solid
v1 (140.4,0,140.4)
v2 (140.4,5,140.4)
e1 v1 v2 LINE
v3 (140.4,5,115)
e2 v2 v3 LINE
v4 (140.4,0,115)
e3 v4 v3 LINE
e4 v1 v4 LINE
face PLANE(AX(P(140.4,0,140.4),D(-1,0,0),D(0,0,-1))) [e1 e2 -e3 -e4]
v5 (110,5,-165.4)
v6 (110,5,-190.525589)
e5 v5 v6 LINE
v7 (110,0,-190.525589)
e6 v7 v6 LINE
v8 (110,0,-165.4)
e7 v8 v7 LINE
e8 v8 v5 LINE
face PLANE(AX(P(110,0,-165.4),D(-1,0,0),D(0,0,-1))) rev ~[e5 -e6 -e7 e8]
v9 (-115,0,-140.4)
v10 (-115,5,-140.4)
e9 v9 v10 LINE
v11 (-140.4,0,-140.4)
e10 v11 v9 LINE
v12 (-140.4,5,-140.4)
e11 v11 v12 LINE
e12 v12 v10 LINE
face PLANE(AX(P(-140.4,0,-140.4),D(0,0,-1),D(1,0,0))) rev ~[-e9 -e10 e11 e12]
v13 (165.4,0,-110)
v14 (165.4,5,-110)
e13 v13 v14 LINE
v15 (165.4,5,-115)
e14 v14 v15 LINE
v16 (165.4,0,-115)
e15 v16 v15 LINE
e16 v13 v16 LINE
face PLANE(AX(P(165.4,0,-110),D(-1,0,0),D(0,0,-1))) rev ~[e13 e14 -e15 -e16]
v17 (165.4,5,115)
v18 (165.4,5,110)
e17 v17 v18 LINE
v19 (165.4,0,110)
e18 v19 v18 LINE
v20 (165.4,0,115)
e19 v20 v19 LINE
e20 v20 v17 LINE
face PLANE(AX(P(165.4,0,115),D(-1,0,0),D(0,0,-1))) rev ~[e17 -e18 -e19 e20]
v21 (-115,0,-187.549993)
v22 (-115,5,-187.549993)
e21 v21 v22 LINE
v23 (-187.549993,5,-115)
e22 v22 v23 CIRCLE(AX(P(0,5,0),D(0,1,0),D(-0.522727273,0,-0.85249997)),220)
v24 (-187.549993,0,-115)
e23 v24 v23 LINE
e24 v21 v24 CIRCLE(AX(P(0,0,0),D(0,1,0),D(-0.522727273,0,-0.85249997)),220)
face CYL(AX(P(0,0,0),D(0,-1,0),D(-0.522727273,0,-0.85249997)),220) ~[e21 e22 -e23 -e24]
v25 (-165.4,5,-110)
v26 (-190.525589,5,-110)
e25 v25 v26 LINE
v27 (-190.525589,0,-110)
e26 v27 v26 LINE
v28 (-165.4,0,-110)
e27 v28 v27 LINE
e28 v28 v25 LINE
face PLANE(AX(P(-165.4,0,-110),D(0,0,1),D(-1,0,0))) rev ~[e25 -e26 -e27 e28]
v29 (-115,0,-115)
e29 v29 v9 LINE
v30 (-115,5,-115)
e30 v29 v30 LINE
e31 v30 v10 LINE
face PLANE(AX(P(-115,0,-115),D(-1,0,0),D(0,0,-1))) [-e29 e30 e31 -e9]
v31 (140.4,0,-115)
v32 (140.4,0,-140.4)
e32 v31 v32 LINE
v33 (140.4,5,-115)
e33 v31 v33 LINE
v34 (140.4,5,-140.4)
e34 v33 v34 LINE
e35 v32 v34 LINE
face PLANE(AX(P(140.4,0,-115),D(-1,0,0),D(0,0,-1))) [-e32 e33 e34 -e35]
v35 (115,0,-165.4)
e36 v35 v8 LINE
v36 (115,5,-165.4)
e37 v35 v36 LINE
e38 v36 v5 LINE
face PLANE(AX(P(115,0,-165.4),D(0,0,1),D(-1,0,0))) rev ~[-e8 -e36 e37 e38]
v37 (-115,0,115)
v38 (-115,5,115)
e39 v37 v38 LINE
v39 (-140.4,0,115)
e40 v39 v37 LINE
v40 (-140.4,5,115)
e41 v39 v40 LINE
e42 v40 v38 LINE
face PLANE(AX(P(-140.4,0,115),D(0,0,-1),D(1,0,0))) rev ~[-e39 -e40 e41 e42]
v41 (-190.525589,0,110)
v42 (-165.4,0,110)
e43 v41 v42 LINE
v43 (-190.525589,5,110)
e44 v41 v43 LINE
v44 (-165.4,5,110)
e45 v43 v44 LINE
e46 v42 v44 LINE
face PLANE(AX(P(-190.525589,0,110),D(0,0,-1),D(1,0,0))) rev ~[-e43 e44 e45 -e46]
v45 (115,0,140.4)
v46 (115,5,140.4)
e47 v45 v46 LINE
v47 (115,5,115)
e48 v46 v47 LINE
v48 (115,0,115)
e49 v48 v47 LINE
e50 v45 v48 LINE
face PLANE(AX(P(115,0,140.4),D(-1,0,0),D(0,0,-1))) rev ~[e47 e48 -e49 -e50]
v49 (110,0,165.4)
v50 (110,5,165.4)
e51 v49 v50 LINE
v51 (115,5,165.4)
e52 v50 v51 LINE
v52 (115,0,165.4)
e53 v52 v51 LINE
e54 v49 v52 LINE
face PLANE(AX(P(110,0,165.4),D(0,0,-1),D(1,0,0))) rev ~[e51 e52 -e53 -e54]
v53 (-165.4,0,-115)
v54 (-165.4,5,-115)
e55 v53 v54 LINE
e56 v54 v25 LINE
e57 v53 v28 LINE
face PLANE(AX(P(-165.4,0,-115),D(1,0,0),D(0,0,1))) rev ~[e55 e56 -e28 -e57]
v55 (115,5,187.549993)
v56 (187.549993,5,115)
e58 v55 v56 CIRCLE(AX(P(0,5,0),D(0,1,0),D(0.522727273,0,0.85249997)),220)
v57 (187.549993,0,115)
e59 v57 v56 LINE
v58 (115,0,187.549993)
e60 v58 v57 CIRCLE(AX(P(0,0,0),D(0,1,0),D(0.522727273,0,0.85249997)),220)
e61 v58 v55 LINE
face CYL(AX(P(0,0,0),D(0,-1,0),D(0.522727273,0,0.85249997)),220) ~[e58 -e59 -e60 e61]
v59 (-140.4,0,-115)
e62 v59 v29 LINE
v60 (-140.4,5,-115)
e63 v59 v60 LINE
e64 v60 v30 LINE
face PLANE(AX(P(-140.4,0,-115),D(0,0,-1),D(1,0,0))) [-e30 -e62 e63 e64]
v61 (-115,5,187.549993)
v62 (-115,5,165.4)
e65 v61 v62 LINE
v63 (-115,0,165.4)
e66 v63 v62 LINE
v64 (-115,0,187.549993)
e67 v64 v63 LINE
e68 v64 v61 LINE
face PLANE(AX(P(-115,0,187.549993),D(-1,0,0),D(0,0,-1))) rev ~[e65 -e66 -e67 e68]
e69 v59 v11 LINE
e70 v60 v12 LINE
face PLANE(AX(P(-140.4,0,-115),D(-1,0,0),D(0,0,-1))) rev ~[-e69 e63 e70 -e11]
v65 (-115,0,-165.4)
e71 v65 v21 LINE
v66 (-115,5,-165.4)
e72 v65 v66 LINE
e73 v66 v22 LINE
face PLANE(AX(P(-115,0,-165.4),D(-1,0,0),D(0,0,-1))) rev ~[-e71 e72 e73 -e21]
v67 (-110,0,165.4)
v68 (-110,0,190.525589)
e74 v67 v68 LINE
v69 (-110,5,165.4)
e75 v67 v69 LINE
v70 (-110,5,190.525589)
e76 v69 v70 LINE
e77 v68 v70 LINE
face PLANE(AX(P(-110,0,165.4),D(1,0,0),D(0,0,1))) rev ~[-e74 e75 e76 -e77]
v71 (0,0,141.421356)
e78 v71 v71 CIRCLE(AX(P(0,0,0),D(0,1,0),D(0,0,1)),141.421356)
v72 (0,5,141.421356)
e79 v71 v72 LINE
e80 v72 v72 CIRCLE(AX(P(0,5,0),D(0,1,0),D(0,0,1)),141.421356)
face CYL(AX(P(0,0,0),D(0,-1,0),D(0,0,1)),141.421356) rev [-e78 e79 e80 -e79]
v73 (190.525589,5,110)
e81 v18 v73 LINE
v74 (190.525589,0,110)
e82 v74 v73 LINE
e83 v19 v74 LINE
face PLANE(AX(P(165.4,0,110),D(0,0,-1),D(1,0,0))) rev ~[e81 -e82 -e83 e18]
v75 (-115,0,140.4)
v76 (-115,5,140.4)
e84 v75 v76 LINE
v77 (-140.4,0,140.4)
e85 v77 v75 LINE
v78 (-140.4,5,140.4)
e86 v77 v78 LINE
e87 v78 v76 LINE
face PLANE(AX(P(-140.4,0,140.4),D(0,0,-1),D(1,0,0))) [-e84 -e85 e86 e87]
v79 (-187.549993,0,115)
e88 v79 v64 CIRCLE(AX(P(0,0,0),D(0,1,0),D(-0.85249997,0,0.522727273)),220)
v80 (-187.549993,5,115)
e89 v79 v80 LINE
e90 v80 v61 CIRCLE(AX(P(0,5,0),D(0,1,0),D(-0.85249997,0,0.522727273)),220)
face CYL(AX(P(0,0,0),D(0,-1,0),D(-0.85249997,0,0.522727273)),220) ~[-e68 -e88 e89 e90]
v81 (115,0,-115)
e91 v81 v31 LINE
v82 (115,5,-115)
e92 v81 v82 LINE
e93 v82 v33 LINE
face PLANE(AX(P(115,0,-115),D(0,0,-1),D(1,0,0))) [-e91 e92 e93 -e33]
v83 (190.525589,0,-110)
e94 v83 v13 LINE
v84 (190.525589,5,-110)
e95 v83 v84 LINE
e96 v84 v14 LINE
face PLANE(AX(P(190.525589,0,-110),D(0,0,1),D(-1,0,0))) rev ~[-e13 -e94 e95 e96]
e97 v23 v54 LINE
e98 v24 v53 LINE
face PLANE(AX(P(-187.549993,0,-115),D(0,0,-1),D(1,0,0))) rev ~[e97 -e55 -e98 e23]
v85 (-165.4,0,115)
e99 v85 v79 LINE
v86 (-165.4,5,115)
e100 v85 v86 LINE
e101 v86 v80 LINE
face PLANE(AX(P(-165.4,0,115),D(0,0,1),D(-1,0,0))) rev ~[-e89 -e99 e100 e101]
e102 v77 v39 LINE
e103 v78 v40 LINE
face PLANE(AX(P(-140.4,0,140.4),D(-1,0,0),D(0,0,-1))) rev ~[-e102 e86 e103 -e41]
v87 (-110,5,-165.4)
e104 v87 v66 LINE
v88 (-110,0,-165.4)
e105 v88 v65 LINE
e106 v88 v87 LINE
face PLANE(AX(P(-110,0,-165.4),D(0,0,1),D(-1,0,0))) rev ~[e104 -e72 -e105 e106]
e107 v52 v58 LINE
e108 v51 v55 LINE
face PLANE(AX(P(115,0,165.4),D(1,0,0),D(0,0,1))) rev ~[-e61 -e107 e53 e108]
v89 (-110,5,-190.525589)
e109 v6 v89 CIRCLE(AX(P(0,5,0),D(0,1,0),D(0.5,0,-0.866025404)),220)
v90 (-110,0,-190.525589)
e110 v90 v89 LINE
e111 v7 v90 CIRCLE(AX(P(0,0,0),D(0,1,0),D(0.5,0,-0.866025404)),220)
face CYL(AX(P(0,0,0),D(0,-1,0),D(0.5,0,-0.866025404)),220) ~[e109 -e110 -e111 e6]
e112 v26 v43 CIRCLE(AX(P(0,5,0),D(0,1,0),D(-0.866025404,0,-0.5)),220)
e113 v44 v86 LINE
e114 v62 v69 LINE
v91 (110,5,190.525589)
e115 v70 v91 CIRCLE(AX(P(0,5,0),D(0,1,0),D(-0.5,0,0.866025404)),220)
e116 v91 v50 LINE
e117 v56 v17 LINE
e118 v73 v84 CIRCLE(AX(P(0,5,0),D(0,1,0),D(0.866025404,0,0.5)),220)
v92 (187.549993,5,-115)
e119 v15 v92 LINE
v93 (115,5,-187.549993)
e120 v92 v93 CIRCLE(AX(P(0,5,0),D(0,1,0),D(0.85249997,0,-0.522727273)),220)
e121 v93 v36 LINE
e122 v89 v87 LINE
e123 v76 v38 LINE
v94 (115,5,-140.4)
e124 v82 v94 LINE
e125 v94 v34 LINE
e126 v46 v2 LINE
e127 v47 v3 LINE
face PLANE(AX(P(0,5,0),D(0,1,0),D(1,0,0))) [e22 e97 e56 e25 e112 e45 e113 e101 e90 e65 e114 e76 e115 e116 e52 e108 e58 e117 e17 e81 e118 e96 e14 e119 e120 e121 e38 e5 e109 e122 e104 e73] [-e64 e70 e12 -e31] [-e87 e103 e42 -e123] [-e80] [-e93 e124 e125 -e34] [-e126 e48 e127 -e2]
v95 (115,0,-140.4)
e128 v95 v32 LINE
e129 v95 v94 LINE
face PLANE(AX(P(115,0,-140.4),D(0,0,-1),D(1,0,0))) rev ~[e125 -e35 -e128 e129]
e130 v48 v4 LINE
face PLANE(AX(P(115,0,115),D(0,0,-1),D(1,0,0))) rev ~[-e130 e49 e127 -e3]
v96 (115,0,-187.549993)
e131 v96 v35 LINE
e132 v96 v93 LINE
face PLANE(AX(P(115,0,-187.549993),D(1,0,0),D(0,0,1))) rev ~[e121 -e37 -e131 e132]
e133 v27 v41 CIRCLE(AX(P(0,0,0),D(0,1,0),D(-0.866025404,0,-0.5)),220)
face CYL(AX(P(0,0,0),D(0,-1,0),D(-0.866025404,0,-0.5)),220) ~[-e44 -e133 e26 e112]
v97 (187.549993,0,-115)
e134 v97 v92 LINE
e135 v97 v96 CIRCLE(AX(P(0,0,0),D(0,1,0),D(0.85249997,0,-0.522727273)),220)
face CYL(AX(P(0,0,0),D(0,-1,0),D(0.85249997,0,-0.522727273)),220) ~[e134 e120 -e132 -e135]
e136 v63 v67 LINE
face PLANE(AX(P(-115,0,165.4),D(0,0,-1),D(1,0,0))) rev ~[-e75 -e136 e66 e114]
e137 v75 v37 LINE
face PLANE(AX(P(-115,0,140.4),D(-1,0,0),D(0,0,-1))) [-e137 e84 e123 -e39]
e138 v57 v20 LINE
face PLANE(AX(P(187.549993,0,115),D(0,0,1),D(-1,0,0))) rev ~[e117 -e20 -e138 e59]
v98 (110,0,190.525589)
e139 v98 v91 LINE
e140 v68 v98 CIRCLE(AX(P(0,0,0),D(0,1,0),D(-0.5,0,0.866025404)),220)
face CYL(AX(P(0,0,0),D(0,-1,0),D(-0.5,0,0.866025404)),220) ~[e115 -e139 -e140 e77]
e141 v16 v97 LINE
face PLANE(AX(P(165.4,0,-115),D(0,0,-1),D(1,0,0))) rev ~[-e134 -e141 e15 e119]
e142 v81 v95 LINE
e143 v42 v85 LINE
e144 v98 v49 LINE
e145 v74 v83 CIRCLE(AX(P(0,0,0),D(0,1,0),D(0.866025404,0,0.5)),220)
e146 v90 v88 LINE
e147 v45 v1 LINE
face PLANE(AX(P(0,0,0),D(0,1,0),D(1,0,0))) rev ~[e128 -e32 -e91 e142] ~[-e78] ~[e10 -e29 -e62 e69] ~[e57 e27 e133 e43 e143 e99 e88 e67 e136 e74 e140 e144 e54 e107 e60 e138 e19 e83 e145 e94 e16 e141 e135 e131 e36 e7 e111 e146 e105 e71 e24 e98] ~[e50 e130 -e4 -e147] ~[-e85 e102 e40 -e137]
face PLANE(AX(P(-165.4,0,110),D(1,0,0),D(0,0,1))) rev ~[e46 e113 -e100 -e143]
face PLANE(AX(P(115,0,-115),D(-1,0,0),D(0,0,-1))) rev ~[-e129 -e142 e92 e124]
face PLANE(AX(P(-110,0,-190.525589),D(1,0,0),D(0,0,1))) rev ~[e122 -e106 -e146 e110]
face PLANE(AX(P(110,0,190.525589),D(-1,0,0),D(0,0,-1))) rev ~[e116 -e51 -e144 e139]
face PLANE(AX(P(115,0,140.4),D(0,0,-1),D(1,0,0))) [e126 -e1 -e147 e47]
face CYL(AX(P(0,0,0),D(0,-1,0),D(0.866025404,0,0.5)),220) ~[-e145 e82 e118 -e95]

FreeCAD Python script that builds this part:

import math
import FreeCAD as App
import Part
import Sketcher

V = App.Vector
Q = App.Units.Quantity

doc = App.newDocument("Part")
body = doc.addObject("PartDesign::Body", "Body")

# Sketch on XZ plane
sketch1 = doc.addObject("Sketcher::SketchObject", "Sketch")
body.addObject(sketch1)
sketch1.AttachmentSupport = (doc.XZ_Plane, [""])
sketch1.MapMode = "FlatFace"
sketch1.addGeometry(Part.LineSegment(V(115, -165, 0), V(110, -165, 0)), False)
sketch1.addGeometry(Part.LineSegment(V(110, -165, 0), V(110, -191, 0)), False)
sketch1.addGeometry(Part.ArcOfCircle(Part.Circle(V(0, 0, 0), V(0, 0, 1), 220), math.radians(-120), math.radians(-60)), False)
sketch1.addGeometry(Part.LineSegment(V(-110, -191, 0), V(-110, -165, 0)), False)
sketch1.addGeometry(Part.LineSegment(V(-110, -165, 0), V(-115, -165, 0)), False)
sketch1.addGeometry(Part.LineSegment(V(-115, -165, 0), V(-115, -188, 0)), False)
sketch1.addGeometry(Part.ArcOfCircle(Part.Circle(V(0, 0, 0), V(0, 0, 1), 220), math.radians(-148), math.radians(-122)), False)
sketch1.addGeometry(Part.LineSegment(V(-188, -115, 0), V(-165, -115, 0)), False)
sketch1.addGeometry(Part.LineSegment(V(-165, -115, 0), V(-165, -110, 0)), False)
sketch1.addGeometry(Part.LineSegment(V(-165, -110, 0), V(-191, -110, 0)), False)
sketch1.addGeometry(Part.ArcOfCircle(Part.Circle(V(0, 0, 0), V(0, 0, 1), 220), math.radians(150), math.radians(210)), False)
sketch1.addGeometry(Part.LineSegment(V(-191, 110, 0), V(-165, 110, 0)), False)
sketch1.addGeometry(Part.LineSegment(V(-165, 110, 0), V(-165, 115, 0)), False)
sketch1.addGeometry(Part.LineSegment(V(-165, 115, 0), V(-188, 115, 0)), False)
sketch1.addGeometry(Part.ArcOfCircle(Part.Circle(V(0, 0, 0), V(0, 0, 1), 220), math.radians(122), math.radians(148)), False)
sketch1.addGeometry(Part.LineSegment(V(-115, 188, 0), V(-115, 165, 0)), False)
sketch1.addGeometry(Part.LineSegment(V(-115, 165, 0), V(-110, 165, 0)), False)
sketch1.addGeometry(Part.LineSegment(V(-110, 165, 0), V(-110, 191, 0)), False)
sketch1.addGeometry(Part.ArcOfCircle(Part.Circle(V(0, 0, 0), V(0, 0, 1), 220), math.radians(60), math.radians(120)), False)
sketch1.addGeometry(Part.LineSegment(V(110, 191, 0), V(110, 165, 0)), False)
sketch1.addGeometry(Part.LineSegment(V(110, 165, 0), V(115, 165, 0)), False)
sketch1.addGeometry(Part.LineSegment(V(115, 165, 0), V(115, 188, 0)), False)
sketch1.addGeometry(Part.ArcOfCircle(Part.Circle(V(0, 0, 0), V(0, 0, 1), 220), math.radians(32), math.radians(58)), False)
sketch1.addGeometry(Part.LineSegment(V(188, 115, 0), V(165, 115, 0)), False)
sketch1.addGeometry(Part.LineSegment(V(165, 115, 0), V(165, 110, 0)), False)
sketch1.addGeometry(Part.LineSegment(V(165, 110, 0), V(191, 110, 0)), False)
sketch1.addGeometry(Part.ArcOfCircle(Part.Circle(V(0, 0, 0), V(0, 0, 1), 220), math.radians(-30), math.radians(30)), False)
sketch1.addGeometry(Part.LineSegment(V(191, -110, 0), V(165, -110, 0)), False)
sketch1.addGeometry(Part.LineSegment(V(165, -110, 0), V(165, -115, 0)), False)
sketch1.addGeometry(Part.LineSegment(V(165, -115, 0), V(188, -115, 0)), False)
sketch1.addGeometry(Part.ArcOfCircle(Part.Circle(V(0, 0, 0), V(0, 0, 1), 220), math.radians(-58), math.radians(-32)), False)
sketch1.addGeometry(Part.LineSegment(V(115, -188, 0), V(115, -165, 0)), False)
sketch1.addGeometry(Part.LineSegment(V(-115, 140, 0), V(-140, 140, 0)), False)
sketch1.addGeometry(Part.LineSegment(V(-140, 140, 0), V(-140, 115, 0)), False)
sketch1.addGeometry(Part.LineSegment(V(-140, 115, 0), V(-115, 115, 0)), False)
sketch1.addGeometry(Part.LineSegment(V(-115, 115, 0), V(-115, 140, 0)), False)
sketch1.addGeometry(Part.LineSegment(V(140, 140, 0), V(115, 140, 0)), False)
sketch1.addGeometry(Part.LineSegment(V(115, 140, 0), V(115, 115, 0)), False)
sketch1.addGeometry(Part.LineSegment(V(115, 115, 0), V(140, 115, 0)), False)
sketch1.addGeometry(Part.LineSegment(V(140, 115, 0), V(140, 140, 0)), False)
sketch1.addGeometry(Part.LineSegment(V(-115, -115, 0), V(-140, -115, 0)), False)
sketch1.addGeometry(Part.LineSegment(V(-140, -115, 0), V(-140, -140, 0)), False)
sketch1.addGeometry(Part.LineSegment(V(-140, -140, 0), V(-115, -140, 0)), False)
sketch1.addGeometry(Part.LineSegment(V(-115, -140, 0), V(-115, -115, 0)), False)
sketch1.addGeometry(Part.Circle(V(0, 0, 0), V(0, 0, 1), 141), False)
sketch1.addGeometry(Part.LineSegment(V(140, -115, 0), V(115, -115, 0)), False)
sketch1.addGeometry(Part.LineSegment(V(115, -115, 0), V(115, -140, 0)), False)
sketch1.addGeometry(Part.LineSegment(V(115, -140, 0), V(140, -140, 0)), False)
sketch1.addGeometry(Part.LineSegment(V(140, -140, 0), V(140, -115, 0)), False)
sketch1.addConstraint(Sketcher.Constraint("Coincident", 0, 2, 1, 1))
sketch1.addConstraint(Sketcher.Constraint("Coincident", 1, 2, 2, 2))
sketch1.addConstraint(Sketcher.Constraint("Coincident", 2, 1, 3, 1))
sketch1.addConstraint(Sketcher.Constraint("Coincident", 3, 2, 4, 1))
sketch1.addConstraint(Sketcher.Constraint("Coincident", 4, 2, 5, 1))
sketch1.addConstraint(Sketcher.Constraint("Coincident", 5, 2, 6, 2))
sketch1.addConstraint(Sketcher.Constraint("Coincident", 6, 1, 7, 1))
sketch1.addConstraint(Sketcher.Constraint("Coincident", 7, 2, 8, 1))
sketch1.addConstraint(Sketcher.Constraint("Coincident", 8, 2, 9, 1))
sketch1.addConstraint(Sketcher.Constraint("Coincident", 9, 2, 10, 2))
sketch1.addConstraint(Sketcher.Constraint("Coincident", 10, 1, 11, 1))
sketch1.addConstraint(Sketcher.Constraint("Coincident", 11, 2, 12, 1))
sketch1.addConstraint(Sketcher.Constraint("Coincident", 12, 2, 13, 1))
sketch1.addConstraint(Sketcher.Constraint("Coincident", 13, 2, 14, 2))
sketch1.addConstraint(Sketcher.Constraint("Coincident", 14, 1, 15, 1))
sketch1.addConstraint(Sketcher.Constraint("Coincident", 15, 2, 16, 1))
sketch1.addConstraint(Sketcher.Constraint("Coincident", 16, 2, 17, 1))
sketch1.addConstraint(Sketcher.Constraint("Coincident", 17, 2, 18, 2))
sketch1.addConstraint(Sketcher.Constraint("Coincident", 18, 1, 19, 1))
sketch1.addConstraint(Sketcher.Constraint("Coincident", 19, 2, 20, 1))
sketch1.addConstraint(Sketcher.Constraint("Coincident", 20, 2, 21, 1))
sketch1.addConstraint(Sketcher.Constraint("Coincident", 21, 2, 22, 2))
sketch1.addConstraint(Sketcher.Constraint("Coincident", 22, 1, 23, 1))
sketch1.addConstraint(Sketcher.Constraint("Coincident", 23, 2, 24, 1))
sketch1.addConstraint(Sketcher.Constraint("Coincident", 24, 2, 25, 1))
sketch1.addConstraint(Sketcher.Constraint("Coincident", 25, 2, 26, 2))
sketch1.addConstraint(Sketcher.Constraint("Coincident", 26, 1, 27, 1))
sketch1.addConstraint(Sketcher.Constraint("Coincident", 27, 2, 28, 1))
sketch1.addConstraint(Sketcher.Constraint("Coincident", 28, 2, 29, 1))
sketch1.addConstraint(Sketcher.Constraint("Coincident", 29, 2, 30, 2))
sketch1.addConstraint(Sketcher.Constraint("Coincident", 30, 1, 31, 1))
sketch1.addConstraint(Sketcher.Constraint("Coincident", 31, 2, 0, 1))
sketch1.addConstraint(Sketcher.Constraint("Coincident", 32, 2, 33, 1))
sketch1.addConstraint(Sketcher.Constraint("Coincident", 33, 2, 34, 1))
sketch1.addConstraint(Sketcher.Constraint("Coincident", 34, 2, 35, 1))
sketch1.addConstraint(Sketcher.Constraint("Coincident", 35, 2, 32, 1))
sketch1.addConstraint(Sketcher.Constraint("Coincident", 36, 2, 37, 1))
sketch1.addConstraint(Sketcher.Constraint("Coincident", 37, 2, 38, 1))
sketch1.addConstraint(Sketcher.Constraint("Coincident", 38, 2, 39, 1))
sketch1.addConstraint(Sketcher.Constraint("Coincident", 39, 2, 36, 1))
sketch1.addConstraint(Sketcher.Constraint("Coincident", 40, 2, 41, 1))
sketch1.addConstraint(Sketcher.Constraint("Coincident", 41, 2, 42, 1))
sketch1.addConstraint(Sketcher.Constraint("Coincident", 42, 2, 43, 1))
sketch1.addConstraint(Sketcher.Constraint("Coincident", 43, 2, 40, 1))
sketch1.addConstraint(Sketcher.Constraint("Coincident", 45, 2, 46, 1))
sketch1.addConstraint(Sketcher.Constraint("Coincident", 46, 2, 47, 1))
sketch1.addConstraint(Sketcher.Constraint("Coincident", 47, 2, 48, 1))
sketch1.addConstraint(Sketcher.Constraint("Coincident", 48, 2, 45, 1))
sketch1.addConstraint(Sketcher.Constraint("Horizontal", 0))
sketch1.addConstraint(Sketcher.Constraint("Vertical", 1))
sketch1.addConstraint(Sketcher.Constraint("Vertical", 3))
sketch1.addConstraint(Sketcher.Constraint("Horizontal", 4))
sketch1.addConstraint(Sketcher.Constraint("Vertical", 5))
sketch1.addConstraint(Sketcher.Constraint("Horizontal", 7))
sketch1.addConstraint(Sketcher.Constraint("Vertical", 8))
sketch1.addConstraint(Sketcher.Constraint("Horizontal", 9))
sketch1.addConstraint(Sketcher.Constraint("Horizontal", 11))
sketch1.addConstraint(Sketcher.Constraint("Vertical", 12))
sketch1.addConstraint(Sketcher.Constraint("Horizontal", 13))
sketch1.addConstraint(Sketcher.Constraint("Vertical", 15))
sketch1.addConstraint(Sketcher.Constraint("Horizontal", 16))
sketch1.addConstraint(Sketcher.Constraint("Vertical", 17))
sketch1.addConstraint(Sketcher.Constraint("Vertical", 19))
sketch1.addConstraint(Sketcher.Constraint("Horizontal", 20))
sketch1.addConstraint(Sketcher.Constraint("Vertical", 21))
sketch1.addConstraint(Sketcher.Constraint("Horizontal", 23))
sketch1.addConstraint(Sketcher.Constraint("Vertical", 24))
sketch1.addConstraint(Sketcher.Constraint("Horizontal", 25))
sketch1.addConstraint(Sketcher.Constraint("Horizontal", 27))
sketch1.addConstraint(Sketcher.Constraint("Vertical", 28))
sketch1.addConstraint(Sketcher.Constraint("Horizontal", 29))
sketch1.addConstraint(Sketcher.Constraint("Vertical", 31))
sketch1.addConstraint(Sketcher.Constraint("Horizontal", 32))
sketch1.addConstraint(Sketcher.Constraint("Vertical", 33))
sketch1.addConstraint(Sketcher.Constraint("Horizontal", 34))
sketch1.addConstraint(Sketcher.Constraint("Vertical", 35))
sketch1.addConstraint(Sketcher.Constraint("Horizontal", 36))
sketch1.addConstraint(Sketcher.Constraint("Vertical", 37))
sketch1.addConstraint(Sketcher.Constraint("Horizontal", 38))
sketch1.addConstraint(Sketcher.Constraint("Vertical", 39))
sketch1.addConstraint(Sketcher.Constraint("Horizontal", 40))
sketch1.addConstraint(Sketcher.Constraint("Vertical", 41))
sketch1.addConstraint(Sketcher.Constraint("Horizontal", 42))
sketch1.addConstraint(Sketcher.Constraint("Vertical", 43))
sketch1.addConstraint(Sketcher.Constraint("Horizontal", 45))
sketch1.addConstraint(Sketcher.Constraint("Vertical", 46))
sketch1.addConstraint(Sketcher.Constraint("Horizontal", 47))
sketch1.addConstraint(Sketcher.Constraint("Vertical", 48))
sketch1.addConstraint(Sketcher.Constraint("Coincident", 2, 3, -1, 1))
sketch1.addConstraint(Sketcher.Constraint("Coincident", 6, 3, -1, 1))
sketch1.addConstraint(Sketcher.Constraint("Coincident", 10, 3, -1, 1))
sketch1.addConstraint(Sketcher.Constraint("Coincident", 14, 3, -1, 1))
sketch1.addConstraint(Sketcher.Constraint("Coincident", 18, 3, -1, 1))
sketch1.addConstraint(Sketcher.Constraint("Coincident", 22, 3, -1, 1))
sketch1.addConstraint(Sketcher.Constraint("Coincident", 26, 3, -1, 1))
sketch1.addConstraint(Sketcher.Constraint("Coincident", 30, 3, -1, 1))
sketch1.addConstraint(Sketcher.Constraint("Coincident", 44, 3, -1, 1))
sketch1.addConstraint(Sketcher.Constraint("Equal", 2, 6))
sketch1.addConstraint(Sketcher.Constraint("Equal", 6, 10))
sketch1.addConstraint(Sketcher.Constraint("Equal", 10, 14))
sketch1.addConstraint(Sketcher.Constraint("Equal", 14, 18))
sketch1.addConstraint(Sketcher.Constraint("Equal", 18, 22))
sketch1.addConstraint(Sketcher.Constraint("Equal", 22, 26))
sketch1.addConstraint(Sketcher.Constraint("Equal", 26, 30))
sketch1.addConstraint(Sketcher.Constraint("Symmetric", 0, 2, 16, 2, -1, 1))
sketch1.addConstraint(Sketcher.Constraint("Symmetric", 3, 2, 19, 2, -1, 1))
sketch1.addConstraint(Sketcher.Constraint("Symmetric", 7, 2, 23, 2, -1, 1))
sketch1.addConstraint(Sketcher.Constraint("Symmetric", 11, 2, 27, 2, -1, 1))
sketch1.addConstraint(Sketcher.Constraint("Symmetric", 38, 2, 40, 2, -1, 1))
sketch1.addConstraint(Sketcher.Constraint("Symmetric", 36, 2, 42, 2, -1, 1))
sketch1.addConstraint(Sketcher.Constraint("Symmetric", 34, 2, 45, 2, -1, 1))
sketch1.addConstraint(Sketcher.Constraint("Symmetric", 32, 2, 47, 2, -1, 1))
sketch1.addConstraint(Sketcher.Constraint("Symmetric", 0, 2, 3, 2, -2))
sketch1.addConstraint(Sketcher.Constraint("Symmetric", 12, 2, 23, 2, -2))
sketch1.addConstraint(Sketcher.Constraint("Symmetric", 35, 2, 36, 2, -2))
sketch1.addConstraint(Sketcher.Constraint("Symmetric", 33, 2, 38, 2, -2))
sketch1.addConstraint(Sketcher.Constraint("Horizontal", 14, 1, 21, 2))
sketch1.addConstraint(Sketcher.Constraint("Horizontal", 11, 2, 24, 2))
sketch1.addConstraint(Sketcher.Constraint("Horizontal", 9, 2, 26, 1))
sketch1.addConstraint(Sketcher.Constraint("Horizontal", 7, 2, 28, 2))
sketch1.addConstraint(Sketcher.Constraint("Horizontal", 5, 2, 30, 1))
sketch1.addConstraint(Sketcher.Constraint("Horizontal", 23, 2, 33, 2))
sketch1.addConstraint(Sketcher.Constraint("Vertical", 5, 2, 14, 1))
sketch1.addConstraint(Sketcher.Constraint("Vertical", 15, 2, 34, 2))
sketch1.addConstraint(Sketcher.Constraint("Equal", 27, 1))
sketch1.addConstraint(Sketcher.Constraint("Equal", 29, 5))
sketch1.addConstraint(Sketcher.Constraint("Equal", 20, 8))
sketch1.addConstraint(Sketcher.Constraint("Equal", 47, 33))
sketch1.addConstraint(Sketcher.Constraint("Radius", 2, Q("220 mm")))
sketch1.addConstraint(Sketcher.Constraint("DistanceX", 0, 2, 0, 1, Q("5 mm")))
sketch1.addConstraint(Sketcher.Constraint("DistanceX", 32, 2, 32, 1, Q("25.4 mm")))
sketch1.addConstraint(Sketcher.Constraint("DistanceX", -1, 1, 0, 2, Q("110 mm")))
sketch1.addConstraint(Sketcher.Constraint("DistanceX", 12, 2, 32, 2, Q("25 mm")))
sketch1.addConstraint(Sketcher.Constraint("Diameter", 44, Q("282.842712 mm")))
pad1 = doc.addObject("PartDesign::Pad", "Pad")
body.addObject(pad1)
pad1.Profile = sketch1
pad1.Length = 5
pad1.Reversed = True

doc.recompute()
